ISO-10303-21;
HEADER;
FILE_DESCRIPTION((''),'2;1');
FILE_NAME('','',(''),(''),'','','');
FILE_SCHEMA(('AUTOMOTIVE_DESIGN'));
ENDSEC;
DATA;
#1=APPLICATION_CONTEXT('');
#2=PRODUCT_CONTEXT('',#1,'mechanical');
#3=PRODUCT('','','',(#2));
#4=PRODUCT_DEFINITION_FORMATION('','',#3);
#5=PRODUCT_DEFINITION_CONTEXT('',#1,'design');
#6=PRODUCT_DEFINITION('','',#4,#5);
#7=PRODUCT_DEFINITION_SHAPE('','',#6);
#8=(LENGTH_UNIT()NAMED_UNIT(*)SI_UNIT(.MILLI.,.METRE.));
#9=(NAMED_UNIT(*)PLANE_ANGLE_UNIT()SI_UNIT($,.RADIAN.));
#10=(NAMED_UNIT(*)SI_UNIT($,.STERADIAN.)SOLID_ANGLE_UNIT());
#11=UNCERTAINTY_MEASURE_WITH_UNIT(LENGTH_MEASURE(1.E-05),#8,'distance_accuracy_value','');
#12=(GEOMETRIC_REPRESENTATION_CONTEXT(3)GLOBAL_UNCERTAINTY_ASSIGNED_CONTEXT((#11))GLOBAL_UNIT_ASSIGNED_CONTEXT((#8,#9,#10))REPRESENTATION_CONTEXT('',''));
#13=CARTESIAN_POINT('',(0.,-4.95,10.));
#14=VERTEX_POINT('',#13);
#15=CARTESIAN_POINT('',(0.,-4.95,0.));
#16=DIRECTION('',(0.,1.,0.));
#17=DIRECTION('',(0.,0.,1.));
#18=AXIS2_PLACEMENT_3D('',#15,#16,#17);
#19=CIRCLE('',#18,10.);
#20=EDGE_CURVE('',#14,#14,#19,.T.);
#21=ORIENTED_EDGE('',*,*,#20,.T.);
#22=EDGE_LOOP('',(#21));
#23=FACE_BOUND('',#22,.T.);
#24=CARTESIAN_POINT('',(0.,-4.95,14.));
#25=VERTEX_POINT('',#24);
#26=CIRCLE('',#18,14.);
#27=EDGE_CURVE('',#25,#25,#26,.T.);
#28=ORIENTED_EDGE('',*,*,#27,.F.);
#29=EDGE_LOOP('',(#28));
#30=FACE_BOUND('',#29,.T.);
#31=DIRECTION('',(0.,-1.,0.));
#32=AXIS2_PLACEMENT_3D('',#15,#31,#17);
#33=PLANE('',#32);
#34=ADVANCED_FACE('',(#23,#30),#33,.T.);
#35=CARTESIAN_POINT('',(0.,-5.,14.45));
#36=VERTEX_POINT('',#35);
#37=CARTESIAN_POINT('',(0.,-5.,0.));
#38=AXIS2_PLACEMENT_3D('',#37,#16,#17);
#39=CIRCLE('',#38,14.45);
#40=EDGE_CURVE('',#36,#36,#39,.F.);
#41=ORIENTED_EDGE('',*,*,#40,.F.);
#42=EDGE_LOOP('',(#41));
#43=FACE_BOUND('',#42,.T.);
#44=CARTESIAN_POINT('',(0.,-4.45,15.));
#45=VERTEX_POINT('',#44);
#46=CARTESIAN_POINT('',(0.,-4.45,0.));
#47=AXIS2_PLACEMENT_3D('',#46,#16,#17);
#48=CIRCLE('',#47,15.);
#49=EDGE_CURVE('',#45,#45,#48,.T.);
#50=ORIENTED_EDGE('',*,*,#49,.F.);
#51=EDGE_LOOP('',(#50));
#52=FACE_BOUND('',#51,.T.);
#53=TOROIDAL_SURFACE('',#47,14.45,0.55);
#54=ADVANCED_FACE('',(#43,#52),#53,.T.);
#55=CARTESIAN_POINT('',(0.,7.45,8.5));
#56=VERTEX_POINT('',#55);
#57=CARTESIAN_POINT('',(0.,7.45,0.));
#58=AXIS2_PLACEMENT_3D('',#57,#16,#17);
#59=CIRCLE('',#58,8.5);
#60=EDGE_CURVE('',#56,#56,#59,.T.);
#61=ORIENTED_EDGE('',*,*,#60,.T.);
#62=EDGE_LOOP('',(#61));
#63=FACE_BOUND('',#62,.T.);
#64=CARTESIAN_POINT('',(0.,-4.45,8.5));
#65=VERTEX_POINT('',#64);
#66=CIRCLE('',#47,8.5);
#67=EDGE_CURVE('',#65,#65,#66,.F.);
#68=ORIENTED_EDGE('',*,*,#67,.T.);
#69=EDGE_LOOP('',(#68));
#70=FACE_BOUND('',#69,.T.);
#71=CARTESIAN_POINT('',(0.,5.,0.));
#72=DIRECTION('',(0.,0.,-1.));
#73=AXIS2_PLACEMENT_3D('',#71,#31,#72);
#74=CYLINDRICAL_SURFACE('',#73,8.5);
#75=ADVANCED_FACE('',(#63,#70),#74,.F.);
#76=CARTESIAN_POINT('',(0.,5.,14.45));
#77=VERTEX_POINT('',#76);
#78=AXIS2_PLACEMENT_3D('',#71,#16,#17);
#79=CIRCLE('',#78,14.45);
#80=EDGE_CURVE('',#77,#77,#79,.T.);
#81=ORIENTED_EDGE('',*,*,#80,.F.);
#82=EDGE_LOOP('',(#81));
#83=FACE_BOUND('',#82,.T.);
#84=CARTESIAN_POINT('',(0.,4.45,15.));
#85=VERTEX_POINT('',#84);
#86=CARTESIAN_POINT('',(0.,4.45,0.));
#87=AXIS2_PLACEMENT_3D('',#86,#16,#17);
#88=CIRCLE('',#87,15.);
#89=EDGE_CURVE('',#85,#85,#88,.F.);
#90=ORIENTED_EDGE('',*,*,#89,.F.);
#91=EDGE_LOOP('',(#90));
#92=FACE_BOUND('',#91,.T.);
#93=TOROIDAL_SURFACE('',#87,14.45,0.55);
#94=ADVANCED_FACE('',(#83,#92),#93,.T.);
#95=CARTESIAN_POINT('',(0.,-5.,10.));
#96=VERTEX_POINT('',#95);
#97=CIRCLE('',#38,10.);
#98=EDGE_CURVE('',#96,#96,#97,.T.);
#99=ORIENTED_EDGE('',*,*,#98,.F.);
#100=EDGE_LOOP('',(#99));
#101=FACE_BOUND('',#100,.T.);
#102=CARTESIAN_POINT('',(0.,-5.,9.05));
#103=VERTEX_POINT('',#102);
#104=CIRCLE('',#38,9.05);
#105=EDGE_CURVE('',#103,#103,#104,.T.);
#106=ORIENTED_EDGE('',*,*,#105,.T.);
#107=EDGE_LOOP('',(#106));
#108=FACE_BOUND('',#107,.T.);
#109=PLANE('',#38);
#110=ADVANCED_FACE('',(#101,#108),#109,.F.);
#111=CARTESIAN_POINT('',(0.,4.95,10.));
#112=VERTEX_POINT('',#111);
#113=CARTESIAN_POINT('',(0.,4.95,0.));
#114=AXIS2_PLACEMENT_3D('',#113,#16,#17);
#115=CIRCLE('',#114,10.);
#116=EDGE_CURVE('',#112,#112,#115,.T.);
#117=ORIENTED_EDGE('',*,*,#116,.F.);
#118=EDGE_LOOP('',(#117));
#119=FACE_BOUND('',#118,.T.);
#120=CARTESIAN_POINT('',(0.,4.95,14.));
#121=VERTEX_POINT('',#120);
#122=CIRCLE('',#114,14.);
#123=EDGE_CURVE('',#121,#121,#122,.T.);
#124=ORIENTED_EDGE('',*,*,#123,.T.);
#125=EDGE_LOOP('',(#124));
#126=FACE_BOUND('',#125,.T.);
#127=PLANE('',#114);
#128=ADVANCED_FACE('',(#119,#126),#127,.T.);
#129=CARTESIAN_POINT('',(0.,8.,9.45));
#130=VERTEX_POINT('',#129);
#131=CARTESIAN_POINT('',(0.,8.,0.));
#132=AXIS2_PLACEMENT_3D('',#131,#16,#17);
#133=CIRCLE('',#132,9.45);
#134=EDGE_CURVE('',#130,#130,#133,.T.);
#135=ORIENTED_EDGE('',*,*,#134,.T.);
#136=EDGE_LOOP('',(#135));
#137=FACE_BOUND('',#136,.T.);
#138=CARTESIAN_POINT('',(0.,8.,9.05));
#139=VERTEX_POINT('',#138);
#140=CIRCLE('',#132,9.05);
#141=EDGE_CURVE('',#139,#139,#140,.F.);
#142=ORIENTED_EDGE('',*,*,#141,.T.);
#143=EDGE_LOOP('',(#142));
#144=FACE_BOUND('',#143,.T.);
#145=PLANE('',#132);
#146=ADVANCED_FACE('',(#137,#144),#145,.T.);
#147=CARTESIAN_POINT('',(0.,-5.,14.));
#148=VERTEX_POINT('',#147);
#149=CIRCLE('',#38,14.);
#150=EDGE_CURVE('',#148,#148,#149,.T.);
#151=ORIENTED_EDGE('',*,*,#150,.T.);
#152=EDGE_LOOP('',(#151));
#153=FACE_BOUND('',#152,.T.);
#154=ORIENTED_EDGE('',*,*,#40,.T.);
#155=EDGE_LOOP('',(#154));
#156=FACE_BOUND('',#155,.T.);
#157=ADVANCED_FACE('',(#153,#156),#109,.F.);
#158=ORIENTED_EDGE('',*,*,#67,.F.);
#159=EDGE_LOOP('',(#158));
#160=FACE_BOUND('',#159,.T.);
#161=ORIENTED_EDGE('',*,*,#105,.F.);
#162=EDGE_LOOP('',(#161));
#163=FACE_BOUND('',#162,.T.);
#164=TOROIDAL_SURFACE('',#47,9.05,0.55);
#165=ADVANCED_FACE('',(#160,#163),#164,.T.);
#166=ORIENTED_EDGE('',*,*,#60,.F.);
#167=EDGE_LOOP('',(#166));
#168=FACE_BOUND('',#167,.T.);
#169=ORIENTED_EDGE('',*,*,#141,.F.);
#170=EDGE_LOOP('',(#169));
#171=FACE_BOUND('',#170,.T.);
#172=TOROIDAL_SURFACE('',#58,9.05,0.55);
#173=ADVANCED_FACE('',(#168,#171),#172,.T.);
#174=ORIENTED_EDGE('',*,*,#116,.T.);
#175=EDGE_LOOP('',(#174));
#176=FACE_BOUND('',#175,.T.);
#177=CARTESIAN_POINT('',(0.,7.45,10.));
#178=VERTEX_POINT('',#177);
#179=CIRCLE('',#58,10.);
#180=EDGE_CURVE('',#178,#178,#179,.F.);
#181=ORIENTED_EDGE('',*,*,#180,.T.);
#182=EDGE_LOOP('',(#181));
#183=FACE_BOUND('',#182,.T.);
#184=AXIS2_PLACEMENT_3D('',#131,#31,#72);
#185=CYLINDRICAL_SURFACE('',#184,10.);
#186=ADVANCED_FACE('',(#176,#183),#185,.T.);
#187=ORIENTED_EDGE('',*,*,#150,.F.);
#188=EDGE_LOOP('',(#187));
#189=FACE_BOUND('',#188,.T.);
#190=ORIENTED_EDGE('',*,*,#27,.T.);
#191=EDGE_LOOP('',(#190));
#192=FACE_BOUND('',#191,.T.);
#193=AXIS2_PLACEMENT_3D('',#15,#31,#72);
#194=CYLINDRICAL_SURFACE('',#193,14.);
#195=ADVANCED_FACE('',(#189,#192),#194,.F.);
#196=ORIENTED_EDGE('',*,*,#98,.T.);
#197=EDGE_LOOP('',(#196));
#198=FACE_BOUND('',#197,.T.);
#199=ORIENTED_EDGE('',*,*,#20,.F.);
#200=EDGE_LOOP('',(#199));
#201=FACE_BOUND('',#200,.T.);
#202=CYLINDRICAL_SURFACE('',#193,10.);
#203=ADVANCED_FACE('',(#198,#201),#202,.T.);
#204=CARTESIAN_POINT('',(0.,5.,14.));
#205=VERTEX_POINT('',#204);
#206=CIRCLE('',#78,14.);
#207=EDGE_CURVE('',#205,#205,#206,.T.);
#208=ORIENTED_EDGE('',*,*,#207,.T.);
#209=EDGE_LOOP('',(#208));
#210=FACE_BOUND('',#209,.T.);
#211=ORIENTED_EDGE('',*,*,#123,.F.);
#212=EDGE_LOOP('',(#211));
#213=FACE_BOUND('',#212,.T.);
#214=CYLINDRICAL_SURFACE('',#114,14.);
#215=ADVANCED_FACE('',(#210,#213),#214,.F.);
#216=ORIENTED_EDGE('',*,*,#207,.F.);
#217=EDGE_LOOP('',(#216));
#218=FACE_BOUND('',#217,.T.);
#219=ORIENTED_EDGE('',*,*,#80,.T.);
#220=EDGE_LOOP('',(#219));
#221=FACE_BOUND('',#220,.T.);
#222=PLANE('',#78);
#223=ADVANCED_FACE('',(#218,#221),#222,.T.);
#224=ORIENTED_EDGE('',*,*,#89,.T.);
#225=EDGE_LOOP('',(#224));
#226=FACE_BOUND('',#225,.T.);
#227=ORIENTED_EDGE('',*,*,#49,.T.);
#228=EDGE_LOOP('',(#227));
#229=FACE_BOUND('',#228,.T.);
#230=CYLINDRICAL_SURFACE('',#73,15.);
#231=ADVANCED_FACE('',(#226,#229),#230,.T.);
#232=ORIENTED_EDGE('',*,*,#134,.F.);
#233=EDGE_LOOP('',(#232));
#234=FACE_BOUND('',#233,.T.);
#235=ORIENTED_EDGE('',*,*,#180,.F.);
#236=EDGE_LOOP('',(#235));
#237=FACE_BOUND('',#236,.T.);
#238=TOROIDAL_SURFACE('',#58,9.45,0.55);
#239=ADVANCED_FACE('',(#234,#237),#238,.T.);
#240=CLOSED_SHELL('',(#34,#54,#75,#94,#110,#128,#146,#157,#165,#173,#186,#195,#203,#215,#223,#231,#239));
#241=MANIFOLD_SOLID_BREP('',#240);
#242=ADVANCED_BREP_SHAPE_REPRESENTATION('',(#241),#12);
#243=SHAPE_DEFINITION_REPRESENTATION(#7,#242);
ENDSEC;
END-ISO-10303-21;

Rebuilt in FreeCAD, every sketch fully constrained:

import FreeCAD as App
import Part
import Sketcher

V = App.Vector
Q = App.Units.Quantity


def edges_at(feature, points):
    """Names of the edges that pass closest to the given points."""
    edges = feature.Shape.Edges
    near = lambda p: min(range(len(edges)), key=lambda i: edges[i].distToShape(Part.Vertex(*p))[0])
    return sorted({f"Edge{near(p) + 1}" for p in points})

doc = App.newDocument("Part")
body = doc.addObject("PartDesign::Body", "Body")

# Sketch on XZ plane
sketch1 = doc.addObject("Sketcher::SketchObject", "Sketch")
body.addObject(sketch1)
sketch1.AttachmentSupport = (doc.XZ_Plane, [""])
sketch1.MapMode = "FlatFace"
sketch1.addGeometry([
    Part.Circle(V(0, 0, 0), V(0, 0, 1), 15),
    Part.Circle(V(0, 0, 0), V(0, 0, 1), 8),
], False)
sketch1.addConstraint([
    Sketcher.Constraint("Coincident", 0, 3, -1, 1),
    Sketcher.Constraint("Coincident", 1, 3, -1, 1),
    Sketcher.Constraint("Diameter", 0, Q("30 mm")),
    Sketcher.Constraint("Diameter", 1, Q("17 mm")),
])
pad1 = doc.addObject("PartDesign::Pad", "Pad")
body.addObject(pad1)
pad1.Profile = sketch1
pad1.Length = 10
pad1.Midplane = True

# Sketch on XZ plane
sketch2 = doc.addObject("Sketcher::SketchObject", "Sketch001")
body.addObject(sketch2)
sketch2.AttachmentSupport = (doc.XZ_Plane, [""])
sketch2.MapMode = "FlatFace"
sketch2.AttachmentOffset = App.Placement(V(0, 0, -5), App.Rotation())
sketch2.addGeometry([
    Part.Circle(V(0, 0, 0), V(0, 0, 1), 10),
    Part.Circle(V(0, 0, 0), V(0, 0, 1), 8),
], False)
sketch2.addConstraint([
    Sketcher.Constraint("Coincident", 0, 3, -1, 1),
    Sketcher.Constraint("Coincident", 1, 3, -1, 1),
    Sketcher.Constraint("Diameter", 0, Q("20 mm")),
    Sketcher.Constraint("Diameter", 1, Q("17 mm")),
])
pad2 = doc.addObject("PartDesign::Pad", "Pad001")
body.addObject(pad2)
pad2.Profile = sketch2
pad2.Length = 3
pad2.Reversed = True

# Sketch on XZ plane
sketch3 = doc.addObject("Sketcher::SketchObject", "Sketch002")
body.addObject(sketch3)
sketch3.AttachmentSupport = (doc.XZ_Plane, [""])
sketch3.MapMode = "FlatFace"
sketch3.AttachmentOffset = App.Placement(V(0, 0, -4.95), App.Rotation())
sketch3.addGeometry([
    Part.Circle(V(0, 0, 0), V(0, 0, 1), 14),
    Part.Circle(V(0, 0, 0), V(0, 0, 1), 10),
], False)
sketch3.addConstraint([
    Sketcher.Constraint("Coincident", 0, 3, -1, 1),
    Sketcher.Constraint("Coincident", 1, 3, -1, 1),
    Sketcher.Constraint("Diameter", 0, Q("28 mm")),
    Sketcher.Constraint("Diameter", 1, Q("20 mm")),
])
pocket1 = doc.addObject("PartDesign::Pocket", "Pocket")
body.addObject(pocket1)
pocket1.Profile = sketch3
pocket1.Length = 0.05
doc.recompute()

mirrored = doc.addObject("PartDesign::Mirrored", "Mirrored")
body.addObject(mirrored)
mirrored.Originals = [pocket1]
mirrored.MirrorPlane = (doc.XZ_Plane, [""])
body.Tip = mirrored
doc.recompute()

fillet = doc.addObject("PartDesign::Fillet", "Fillet")
body.addObject(fillet)
fillet.Base = (mirrored, edges_at(mirrored, [
    (0, 8, -10),
    (0, 8, -8.5),
    (0, -5, -15),
    (0, 5, -15),
    (0, -5, -8.5),
]))
fillet.Radius = 0.55

doc.recompute()
